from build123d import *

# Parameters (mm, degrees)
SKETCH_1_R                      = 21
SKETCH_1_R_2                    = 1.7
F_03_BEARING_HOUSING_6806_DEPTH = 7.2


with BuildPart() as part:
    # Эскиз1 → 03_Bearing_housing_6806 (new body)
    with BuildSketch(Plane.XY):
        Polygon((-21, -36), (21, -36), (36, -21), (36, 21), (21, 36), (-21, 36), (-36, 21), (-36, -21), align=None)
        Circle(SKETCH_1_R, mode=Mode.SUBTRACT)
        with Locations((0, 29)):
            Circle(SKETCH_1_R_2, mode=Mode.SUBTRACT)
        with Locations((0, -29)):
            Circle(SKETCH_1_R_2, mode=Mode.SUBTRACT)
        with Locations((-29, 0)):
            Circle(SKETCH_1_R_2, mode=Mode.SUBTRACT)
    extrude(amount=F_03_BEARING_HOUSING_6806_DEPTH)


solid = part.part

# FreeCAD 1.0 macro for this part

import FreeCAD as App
import Part
import Sketcher

V = App.Vector

doc = App.newDocument("Part")
params = doc.addObject("Spreadsheet::Sheet", "Params")
for row, (alias, value) in enumerate([
    ("sketch1_diameter", "42 mm"),
    ("sketch1_diameter2", "3.4 mm"),
    ("sketch1_width", "42 mm"),
    ("pad1_length", "7.2 mm"),
], start=1):
    params.set(f"A{row}", alias)
    params.set(f"B{row}", "=" + value)
    params.setAlias(f"B{row}", alias)

body = doc.addObject("PartDesign::Body", "Body")

# Sketch on XY plane
sketch1 = body.newObject("Sketcher::SketchObject", "Sketch")
sketch1.AttachmentSupport = (doc.getObject("XY_Plane"), [""])
sketch1.MapMode = "FlatFace"
sketch1.addGeometry([
    Part.LineSegment(V(-21, -36, 0), V(21, -36, 0)),  # 0
    Part.LineSegment(V(21, -36, 0), V(36, -21, 0)),  # 1
    Part.LineSegment(V(36, -21, 0), V(36, 21, 0)),  # 2
    Part.LineSegment(V(36, 21, 0), V(21, 36, 0)),  # 3
    Part.LineSegment(V(21, 36, 0), V(-21, 36, 0)),  # 4
    Part.LineSegment(V(-21, 36, 0), V(-36, 21, 0)),  # 5
    Part.LineSegment(V(-36, 21, 0), V(-36, -21, 0)),  # 6
    Part.LineSegment(V(-36, -21, 0), V(-21, -36, 0)),  # 7
    Part.Circle(V(0, -29, 0), V(0, 0, 1), 1.7),  # 8
    Part.Circle(V(-29, 0, 0), V(0, 0, 1), 1.7),  # 9
    Part.Circle(V(0, 0, 0), V(0, 0, 1), 21),  # 10
    Part.Circle(V(0, 29, 0), V(0, 0, 1), 1.7),  # 11
], False)
sketch1.addConstraint([
    Sketcher.Constraint("Coincident", 0, 2, 1, 1),
    Sketcher.Constraint("Coincident", 1, 2, 2, 1),
    Sketcher.Constraint("Coincident", 2, 2, 3, 1),
    Sketcher.Constraint("Coincident", 3, 2, 4, 1),
    Sketcher.Constraint("Coincident", 4, 2, 5, 1),
    Sketcher.Constraint("Coincident", 5, 2, 6, 1),
    Sketcher.Constraint("Coincident", 6, 2, 7, 1),
    Sketcher.Constraint("Coincident", 7, 2, 0, 1),
    Sketcher.Constraint("Horizontal", 0),
    Sketcher.Constraint("Vertical", 2),
    Sketcher.Constraint("Horizontal", 4),
    Sketcher.Constraint("Vertical", 6),
    Sketcher.Constraint("Coincident", 10, 3, -1, 1),
    Sketcher.Constraint("Equal", 8, 9),
    Sketcher.Constraint("Equal", 9, 11),
    Sketcher.Constraint("Symmetric", 8, 3, 11, 3, -1, 1),
    Sketcher.Constraint("Symmetric", 0, 2, 4, 2, -1, 1),
    Sketcher.Constraint("Symmetric", 1, 2, 5, 2, -1, 1),
    Sketcher.Constraint("PointOnObject", 8, 3, -2),
    Sketcher.Constraint("PointOnObject", 9, 3, -1),
    Sketcher.Constraint("Perpendicular", 1, 3),
    Sketcher.Constraint("Perpendicular", 5, 7),
    Sketcher.Constraint("Horizontal", 2, 2, 5, 2),
    Sketcher.Constraint("Horizontal", 1, 2, 6, 2),
    Sketcher.Constraint("Vertical", 0, 2, 3, 2),
    Sketcher.Constraint("Equal", 4, 2),
    Sketcher.Constraint("Diameter", 10, 42.0),
    Sketcher.Constraint("Diameter", 8, 3.4),
    Sketcher.Constraint("DistanceX", 0, 1, 0, 2, 42.0),
    Sketcher.Constraint("DistanceY", 8, 3, -1, 1, 29.0),
    Sketcher.Constraint("DistanceX", 9, 3, -1, 1, 29.0),
    Sketcher.Constraint("DistanceY", 0, 2, -1, 1, 36.0),
])
sketch1.setExpression("Constraints[26]", "Params.sketch1_diameter")
sketch1.setExpression("Constraints[27]", "Params.sketch1_diameter2")
sketch1.setExpression("Constraints[28]", "Params.sketch1_width")
pad1 = body.newObject("PartDesign::Pad", "Pad")
pad1.Profile = sketch1
pad1.setExpression("Length", "Params.pad1_length")

doc.recompute()
